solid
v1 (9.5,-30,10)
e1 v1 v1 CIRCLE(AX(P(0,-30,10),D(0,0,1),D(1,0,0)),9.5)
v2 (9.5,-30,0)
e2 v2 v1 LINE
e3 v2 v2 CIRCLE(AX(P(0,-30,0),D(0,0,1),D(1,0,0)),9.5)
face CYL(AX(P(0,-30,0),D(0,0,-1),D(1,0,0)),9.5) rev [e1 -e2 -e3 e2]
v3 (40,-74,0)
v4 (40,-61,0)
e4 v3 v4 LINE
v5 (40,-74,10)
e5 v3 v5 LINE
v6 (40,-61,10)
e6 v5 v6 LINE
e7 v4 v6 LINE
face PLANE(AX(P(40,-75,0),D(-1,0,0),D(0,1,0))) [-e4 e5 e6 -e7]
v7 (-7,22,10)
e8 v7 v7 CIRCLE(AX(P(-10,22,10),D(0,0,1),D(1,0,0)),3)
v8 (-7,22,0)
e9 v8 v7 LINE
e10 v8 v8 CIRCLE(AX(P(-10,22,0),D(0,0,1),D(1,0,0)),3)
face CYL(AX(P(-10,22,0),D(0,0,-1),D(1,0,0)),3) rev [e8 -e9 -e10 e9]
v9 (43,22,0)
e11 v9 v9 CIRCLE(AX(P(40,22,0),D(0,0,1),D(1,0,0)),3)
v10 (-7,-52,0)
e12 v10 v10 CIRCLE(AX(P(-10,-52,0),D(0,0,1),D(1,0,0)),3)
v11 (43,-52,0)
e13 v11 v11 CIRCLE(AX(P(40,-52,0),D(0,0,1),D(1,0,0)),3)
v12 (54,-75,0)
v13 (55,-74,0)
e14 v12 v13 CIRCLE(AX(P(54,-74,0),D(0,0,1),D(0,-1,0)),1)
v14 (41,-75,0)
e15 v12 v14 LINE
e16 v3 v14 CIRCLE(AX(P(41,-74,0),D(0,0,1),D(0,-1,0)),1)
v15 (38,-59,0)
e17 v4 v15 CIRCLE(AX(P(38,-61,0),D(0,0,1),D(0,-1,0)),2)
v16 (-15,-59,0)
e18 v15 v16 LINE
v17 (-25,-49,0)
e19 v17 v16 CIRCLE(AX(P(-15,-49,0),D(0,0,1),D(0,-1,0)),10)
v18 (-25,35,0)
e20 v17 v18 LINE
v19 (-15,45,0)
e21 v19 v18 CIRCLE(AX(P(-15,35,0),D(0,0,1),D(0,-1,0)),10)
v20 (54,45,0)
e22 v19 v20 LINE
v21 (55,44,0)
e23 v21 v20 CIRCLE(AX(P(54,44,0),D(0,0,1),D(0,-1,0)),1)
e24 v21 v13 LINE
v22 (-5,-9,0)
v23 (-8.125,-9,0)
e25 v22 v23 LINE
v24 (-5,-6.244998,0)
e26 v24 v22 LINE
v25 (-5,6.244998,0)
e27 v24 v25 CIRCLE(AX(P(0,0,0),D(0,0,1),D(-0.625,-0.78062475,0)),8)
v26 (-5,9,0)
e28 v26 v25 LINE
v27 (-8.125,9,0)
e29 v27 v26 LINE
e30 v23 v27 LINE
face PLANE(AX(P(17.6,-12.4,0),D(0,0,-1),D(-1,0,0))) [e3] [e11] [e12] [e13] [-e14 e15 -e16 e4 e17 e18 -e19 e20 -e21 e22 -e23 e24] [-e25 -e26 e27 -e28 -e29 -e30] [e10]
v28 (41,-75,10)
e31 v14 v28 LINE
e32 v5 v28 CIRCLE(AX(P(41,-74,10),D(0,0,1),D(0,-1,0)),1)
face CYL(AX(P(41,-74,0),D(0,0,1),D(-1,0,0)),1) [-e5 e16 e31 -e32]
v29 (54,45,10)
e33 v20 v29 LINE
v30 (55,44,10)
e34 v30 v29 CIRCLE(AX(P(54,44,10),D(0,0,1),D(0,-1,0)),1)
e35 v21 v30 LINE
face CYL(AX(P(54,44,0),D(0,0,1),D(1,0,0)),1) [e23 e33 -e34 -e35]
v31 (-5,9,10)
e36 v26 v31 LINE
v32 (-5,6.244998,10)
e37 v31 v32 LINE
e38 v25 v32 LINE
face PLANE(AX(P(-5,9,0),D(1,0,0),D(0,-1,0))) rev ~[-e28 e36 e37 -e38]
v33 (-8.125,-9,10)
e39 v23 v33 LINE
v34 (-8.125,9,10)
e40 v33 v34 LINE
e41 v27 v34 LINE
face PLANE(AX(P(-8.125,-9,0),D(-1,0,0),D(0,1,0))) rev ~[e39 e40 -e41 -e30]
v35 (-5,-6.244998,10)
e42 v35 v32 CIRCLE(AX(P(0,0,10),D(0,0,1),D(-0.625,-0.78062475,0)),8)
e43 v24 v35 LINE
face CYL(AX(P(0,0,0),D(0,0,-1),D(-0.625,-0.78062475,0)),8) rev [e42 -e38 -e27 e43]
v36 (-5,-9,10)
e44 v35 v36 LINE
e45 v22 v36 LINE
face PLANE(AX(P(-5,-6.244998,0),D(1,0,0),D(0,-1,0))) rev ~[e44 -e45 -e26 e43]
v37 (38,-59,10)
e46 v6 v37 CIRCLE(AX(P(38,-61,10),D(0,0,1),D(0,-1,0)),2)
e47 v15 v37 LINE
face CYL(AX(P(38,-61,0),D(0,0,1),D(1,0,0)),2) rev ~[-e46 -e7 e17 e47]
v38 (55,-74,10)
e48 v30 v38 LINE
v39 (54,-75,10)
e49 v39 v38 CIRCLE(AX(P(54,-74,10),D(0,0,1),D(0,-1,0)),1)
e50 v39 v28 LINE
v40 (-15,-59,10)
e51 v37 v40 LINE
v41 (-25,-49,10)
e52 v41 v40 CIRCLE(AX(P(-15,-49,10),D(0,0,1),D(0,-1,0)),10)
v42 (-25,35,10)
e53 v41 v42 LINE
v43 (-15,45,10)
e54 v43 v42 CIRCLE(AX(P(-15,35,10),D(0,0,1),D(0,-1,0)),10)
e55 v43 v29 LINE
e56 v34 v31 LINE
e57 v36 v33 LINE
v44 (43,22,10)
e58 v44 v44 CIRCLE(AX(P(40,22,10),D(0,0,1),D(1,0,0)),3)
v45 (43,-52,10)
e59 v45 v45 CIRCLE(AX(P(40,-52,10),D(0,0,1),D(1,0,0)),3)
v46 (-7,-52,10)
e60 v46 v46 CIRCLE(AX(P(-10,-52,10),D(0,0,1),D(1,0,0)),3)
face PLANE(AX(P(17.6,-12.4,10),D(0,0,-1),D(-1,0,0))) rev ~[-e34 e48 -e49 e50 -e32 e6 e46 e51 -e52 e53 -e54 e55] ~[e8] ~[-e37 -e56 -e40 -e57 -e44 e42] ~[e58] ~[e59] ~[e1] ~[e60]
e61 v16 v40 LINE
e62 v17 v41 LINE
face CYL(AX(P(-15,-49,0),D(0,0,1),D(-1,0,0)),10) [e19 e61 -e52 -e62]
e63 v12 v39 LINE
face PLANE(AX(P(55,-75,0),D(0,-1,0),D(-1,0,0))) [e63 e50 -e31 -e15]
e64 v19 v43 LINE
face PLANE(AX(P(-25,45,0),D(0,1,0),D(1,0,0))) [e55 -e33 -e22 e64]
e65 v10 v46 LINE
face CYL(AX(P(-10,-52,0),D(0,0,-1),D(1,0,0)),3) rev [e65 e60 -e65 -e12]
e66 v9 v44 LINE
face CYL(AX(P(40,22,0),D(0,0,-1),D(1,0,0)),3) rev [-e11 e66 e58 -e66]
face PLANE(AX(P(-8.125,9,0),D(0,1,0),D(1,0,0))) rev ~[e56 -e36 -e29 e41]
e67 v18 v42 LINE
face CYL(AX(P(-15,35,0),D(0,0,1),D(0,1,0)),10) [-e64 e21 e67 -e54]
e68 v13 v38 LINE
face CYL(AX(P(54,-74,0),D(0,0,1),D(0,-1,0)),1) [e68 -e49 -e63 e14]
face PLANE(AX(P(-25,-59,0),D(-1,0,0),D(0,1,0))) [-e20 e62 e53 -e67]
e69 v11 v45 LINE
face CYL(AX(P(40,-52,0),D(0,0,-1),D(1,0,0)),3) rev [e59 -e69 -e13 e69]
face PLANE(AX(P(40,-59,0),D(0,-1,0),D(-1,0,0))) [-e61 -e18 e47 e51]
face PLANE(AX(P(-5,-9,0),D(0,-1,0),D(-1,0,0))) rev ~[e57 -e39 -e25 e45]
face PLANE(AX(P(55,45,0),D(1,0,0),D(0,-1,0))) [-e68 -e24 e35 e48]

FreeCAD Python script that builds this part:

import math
import FreeCAD as App
import Part
import Sketcher
Q = App.Units.Quantity


def edges_at(feature, points):
    """Names of the edges that pass closest to the given points."""
    edges = feature.Shape.Edges
    near = lambda p: min(range(len(edges)), key=lambda i: edges[i].distToShape(Part.Vertex(*p))[0])
    return sorted({f"Edge{near(p) + 1}" for p in points})


def add_polygon(sketch, points):
    """Adds a closed chain of lines whose ends are joined by coincident constraints."""
    first, n = sketch.GeometryCount, len(points)
    for a, b in zip(points, points[1:] + points[:1]):
        sketch.addGeometry(Part.LineSegment(App.Vector(*a, 0), App.Vector(*b, 0)), False)
    for i in range(n):
        sketch.addConstraint(Sketcher.Constraint("Coincident", first + i, 2, first + (i + 1) % n, 1))

doc = App.newDocument("Part")
params = doc.addObject("Spreadsheet::Sheet", "Params")
for row, (alias, value) in enumerate([
    ("sketch1_diameter", "6 mm"),
    ("sketch1_diameter2", "19 mm"),
    ("sketch1_radius", "8 mm"),
    ("sketch1_width", "80 mm"),
    ("sketch1_width2", "65 mm"),
    ("pad1_length", "10 mm"),
    ("fillet_radius", "10 mm"),
    ("fillet2_radius", "2 mm"),
    ("fillet3_radius", "1 mm"),
], start=1):
    params.set(f"A{row}", alias)
    params.set(f"B{row}", "=" + value)
    params.setAlias(f"B{row}", alias)

body = doc.addObject("PartDesign::Body", "Body")

# Sketch on XY plane
sketch1 = body.newObject("Sketcher::SketchObject", "Sketch")
sketch1.AttachmentSupport = (doc.getObject("XY_Plane"), [""])
sketch1.MapMode = "FlatFace"
add_polygon(sketch1, [(55, 45), (-25, 45), (-25, -59), (40, -59), (40, -75), (55, -75)])  # lines 0-5
sketch1.addGeometry(Part.Circle(App.Vector(40, -52, 0), App.Vector(0, 0, 1), 3), False)  # 6
sketch1.addGeometry(Part.Circle(App.Vector(-10, -52, 0), App.Vector(0, 0, 1), 3), False)  # 7
sketch1.addGeometry(Part.Circle(App.Vector(0, -30, 0), App.Vector(0, 0, 1), 9.5), False)  # 8
sketch1.addGeometry(Part.Circle(App.Vector(40, 22, 0), App.Vector(0, 0, 1), 3), False)  # 9
sketch1.addGeometry(Part.LineSegment(App.Vector(-5, -6.244998, 0), App.Vector(-5, -9, 0)), False)  # 10
sketch1.addGeometry(Part.LineSegment(App.Vector(-5, -9, 0), App.Vector(-8.125, -9, 0)), False)  # 11
sketch1.addGeometry(Part.LineSegment(App.Vector(-8.125, -9, 0), App.Vector(-8.125, 9, 0)), False)  # 12
sketch1.addGeometry(Part.LineSegment(App.Vector(-8.125, 9, 0), App.Vector(-5, 9, 0)), False)  # 13
sketch1.addGeometry(Part.LineSegment(App.Vector(-5, 9, 0), App.Vector(-5, 6.244998, 0)), False)  # 14
sketch1.addGeometry(Part.ArcOfCircle(Part.Circle(App.Vector(0, 0, 0), App.Vector(0, 0, 1), 8), math.radians(-128.682187), math.radians(128.682187)), False)  # 15
sketch1.addGeometry(Part.Circle(App.Vector(-10, 22, 0), App.Vector(0, 0, 1), 3), False)  # 16
sketch1.addConstraint([
    Sketcher.Constraint("Coincident", 10, 2, 11, 1),
    Sketcher.Constraint("Coincident", 11, 2, 12, 1),
    Sketcher.Constraint("Coincident", 12, 2, 13, 1),
    Sketcher.Constraint("Coincident", 13, 2, 14, 1),
    Sketcher.Constraint("Coincident", 14, 2, 15, 2),
    Sketcher.Constraint("Coincident", 15, 1, 10, 1),
    Sketcher.Constraint("Horizontal", 0),
    Sketcher.Constraint("Vertical", 1),
    Sketcher.Constraint("Horizontal", 2),
    Sketcher.Constraint("Vertical", 3),
    Sketcher.Constraint("Horizontal", 4),
    Sketcher.Constraint("Vertical", 5),
    Sketcher.Constraint("Vertical", 10),
    Sketcher.Constraint("Horizontal", 11),
    Sketcher.Constraint("Vertical", 12),
    Sketcher.Constraint("Horizontal", 13),
    Sketcher.Constraint("Vertical", 14),
    Sketcher.Constraint("Coincident", 15, 3, -1, 1),
    Sketcher.Constraint("Equal", 6, 7),
    Sketcher.Constraint("Equal", 7, 9),
    Sketcher.Constraint("Equal", 9, 16),
    Sketcher.Constraint("Symmetric", 10, 2, 13, 2, -1),
    Sketcher.Constraint("PointOnObject", 8, 3, -2),
    Sketcher.Constraint("Horizontal", 6, 3, 7, 3),
    Sketcher.Constraint("Horizontal", 9, 3, 16, 3),
    Sketcher.Constraint("Vertical", 6, 3, 9, 3),
    Sketcher.Constraint("Vertical", 7, 3, 16, 3),
    Sketcher.Constraint("Vertical", 9, 3, 2, 2),
    Sketcher.Constraint("Diameter", 6, Q("6 mm")),
    Sketcher.Constraint("Diameter", 8, Q("19 mm")),
    Sketcher.Constraint("Radius", 15, Q("8 mm")),
    Sketcher.Constraint("DistanceX", 0, 2, 0, 1, Q("80 mm")),
    Sketcher.Constraint("DistanceX", 2, 1, 2, 2, Q("65 mm")),
    Sketcher.Constraint("DistanceY", 1, 2, 1, 1, Q("104 mm")),
    Sketcher.Constraint("DistanceY", 3, 2, 3, 1, Q("16 mm")),
    Sketcher.Constraint("DistanceY", 12, 1, 12, 2, Q("18 mm")),
    Sketcher.Constraint("DistanceX", -1, 1, 6, 3, Q("40 mm")),
    Sketcher.Constraint("DistanceY", 6, 3, -1, 1, Q("52 mm")),
    Sketcher.Constraint("DistanceX", 7, 3, -1, 1, Q("10 mm")),
    Sketcher.Constraint("DistanceY", 8, 3, -1, 1, Q("30 mm")),
    Sketcher.Constraint("DistanceY", -1, 1, 9, 3, Q("22 mm")),
    Sketcher.Constraint("DistanceY", -1, 1, 0, 2, Q("45 mm")),
    Sketcher.Constraint("DistanceX", 10, 2, -1, 1, Q("5 mm")),
    Sketcher.Constraint("DistanceX", 11, 2, 11, 1, Q("3.125 mm")),
])
sketch1.setExpression("Constraints[34]", "Params.sketch1_diameter")
sketch1.setExpression("Constraints[35]", "Params.sketch1_diameter2")
sketch1.setExpression("Constraints[36]", "Params.sketch1_radius")
sketch1.setExpression("Constraints[37]", "Params.sketch1_width")
sketch1.setExpression("Constraints[38]", "Params.sketch1_width2")
pad1 = body.newObject("PartDesign::Pad", "Pad")
pad1.Profile = sketch1
pad1.setExpression("Length", "Params.pad1_length")
doc.recompute()

fillet = body.newObject("PartDesign::Fillet", "Fillet")
fillet.Base = (pad1, edges_at(pad1, [(-25, 45, 5), (-25, -59, 5)]))
fillet.setExpression("Radius", "Params.fillet_radius")
doc.recompute()

fillet2 = body.newObject("PartDesign::Fillet", "Fillet001")
fillet2.Base = (fillet, edges_at(fillet, [(40, -59, 5)]))
fillet2.setExpression("Radius", "Params.fillet2_radius")
doc.recompute()

fillet3 = body.newObject("PartDesign::Fillet", "Fillet002")
fillet3.Base = (fillet2, edges_at(fillet2, [(40, -75, 5), (55, -75, 5), (55, 45, 5)]))
fillet3.setExpression("Radius", "Params.fillet3_radius")

doc.recompute()
